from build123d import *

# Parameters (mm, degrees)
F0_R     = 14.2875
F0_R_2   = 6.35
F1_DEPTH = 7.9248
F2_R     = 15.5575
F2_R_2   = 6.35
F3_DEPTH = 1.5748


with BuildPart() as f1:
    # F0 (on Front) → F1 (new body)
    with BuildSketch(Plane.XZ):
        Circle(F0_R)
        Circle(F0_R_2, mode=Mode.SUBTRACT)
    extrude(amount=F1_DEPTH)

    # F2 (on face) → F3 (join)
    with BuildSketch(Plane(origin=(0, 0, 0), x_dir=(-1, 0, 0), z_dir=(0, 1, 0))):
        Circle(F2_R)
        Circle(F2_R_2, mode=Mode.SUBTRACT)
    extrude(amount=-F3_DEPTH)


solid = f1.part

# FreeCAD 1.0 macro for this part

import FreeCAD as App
import Part
import Sketcher
Q = App.Units.Quantity

doc = App.newDocument("Part")
body = doc.addObject("PartDesign::Body", "Body")

# Sketch on XZ plane
sketch1 = body.newObject("Sketcher::SketchObject", "Sketch")
sketch1.AttachmentSupport = (doc.getObject("XZ_Plane"), [""])
sketch1.MapMode = "FlatFace"
sketch1.addGeometry(Part.Circle(App.Vector(0, 0, 0), App.Vector(0, 0, 1), 14), False)
sketch1.addGeometry(Part.Circle(App.Vector(0, 0, 0), App.Vector(0, 0, 1), 6), False)
sketch1.addConstraint(Sketcher.Constraint("Coincident", 0, 3, -1, 1))
sketch1.addConstraint(Sketcher.Constraint("Coincident", 1, 3, -1, 1))
sketch1.addConstraint(Sketcher.Constraint("Diameter", 1, Q("0.5 in")))
sketch1.addConstraint(Sketcher.Constraint("Diameter", 0, Q("1.125 in")))
pad1 = body.newObject("PartDesign::Pad", "Pad")
pad1.Profile = sketch1
pad1.Length = Q("0.312 in")

# Sketch on XZ plane
sketch2 = body.newObject("Sketcher::SketchObject", "Sketch001")
sketch2.AttachmentSupport = (doc.getObject("XZ_Plane"), [""])
sketch2.MapMode = "FlatFace"
sketch2.addGeometry(Part.Circle(App.Vector(0, 0, 0), App.Vector(0, 0, 1), 16), False)
sketch2.addGeometry(Part.Circle(App.Vector(0, 0, 0), App.Vector(0, 0, 1), 6), False)
sketch2.addConstraint(Sketcher.Constraint("Coincident", 0, 3, -1, 1))
sketch2.addConstraint(Sketcher.Constraint("Coincident", 1, 3, -1, 1))
sketch2.addConstraint(Sketcher.Constraint("Diameter", 1, Q("0.5 in")))
sketch2.addConstraint(Sketcher.Constraint("Diameter", 0, Q("1.225 in")))
pad2 = body.newObject("PartDesign::Pad", "Pad001")
pad2.Profile = sketch2
pad2.Length = Q("0.062 in")

doc.recompute()
